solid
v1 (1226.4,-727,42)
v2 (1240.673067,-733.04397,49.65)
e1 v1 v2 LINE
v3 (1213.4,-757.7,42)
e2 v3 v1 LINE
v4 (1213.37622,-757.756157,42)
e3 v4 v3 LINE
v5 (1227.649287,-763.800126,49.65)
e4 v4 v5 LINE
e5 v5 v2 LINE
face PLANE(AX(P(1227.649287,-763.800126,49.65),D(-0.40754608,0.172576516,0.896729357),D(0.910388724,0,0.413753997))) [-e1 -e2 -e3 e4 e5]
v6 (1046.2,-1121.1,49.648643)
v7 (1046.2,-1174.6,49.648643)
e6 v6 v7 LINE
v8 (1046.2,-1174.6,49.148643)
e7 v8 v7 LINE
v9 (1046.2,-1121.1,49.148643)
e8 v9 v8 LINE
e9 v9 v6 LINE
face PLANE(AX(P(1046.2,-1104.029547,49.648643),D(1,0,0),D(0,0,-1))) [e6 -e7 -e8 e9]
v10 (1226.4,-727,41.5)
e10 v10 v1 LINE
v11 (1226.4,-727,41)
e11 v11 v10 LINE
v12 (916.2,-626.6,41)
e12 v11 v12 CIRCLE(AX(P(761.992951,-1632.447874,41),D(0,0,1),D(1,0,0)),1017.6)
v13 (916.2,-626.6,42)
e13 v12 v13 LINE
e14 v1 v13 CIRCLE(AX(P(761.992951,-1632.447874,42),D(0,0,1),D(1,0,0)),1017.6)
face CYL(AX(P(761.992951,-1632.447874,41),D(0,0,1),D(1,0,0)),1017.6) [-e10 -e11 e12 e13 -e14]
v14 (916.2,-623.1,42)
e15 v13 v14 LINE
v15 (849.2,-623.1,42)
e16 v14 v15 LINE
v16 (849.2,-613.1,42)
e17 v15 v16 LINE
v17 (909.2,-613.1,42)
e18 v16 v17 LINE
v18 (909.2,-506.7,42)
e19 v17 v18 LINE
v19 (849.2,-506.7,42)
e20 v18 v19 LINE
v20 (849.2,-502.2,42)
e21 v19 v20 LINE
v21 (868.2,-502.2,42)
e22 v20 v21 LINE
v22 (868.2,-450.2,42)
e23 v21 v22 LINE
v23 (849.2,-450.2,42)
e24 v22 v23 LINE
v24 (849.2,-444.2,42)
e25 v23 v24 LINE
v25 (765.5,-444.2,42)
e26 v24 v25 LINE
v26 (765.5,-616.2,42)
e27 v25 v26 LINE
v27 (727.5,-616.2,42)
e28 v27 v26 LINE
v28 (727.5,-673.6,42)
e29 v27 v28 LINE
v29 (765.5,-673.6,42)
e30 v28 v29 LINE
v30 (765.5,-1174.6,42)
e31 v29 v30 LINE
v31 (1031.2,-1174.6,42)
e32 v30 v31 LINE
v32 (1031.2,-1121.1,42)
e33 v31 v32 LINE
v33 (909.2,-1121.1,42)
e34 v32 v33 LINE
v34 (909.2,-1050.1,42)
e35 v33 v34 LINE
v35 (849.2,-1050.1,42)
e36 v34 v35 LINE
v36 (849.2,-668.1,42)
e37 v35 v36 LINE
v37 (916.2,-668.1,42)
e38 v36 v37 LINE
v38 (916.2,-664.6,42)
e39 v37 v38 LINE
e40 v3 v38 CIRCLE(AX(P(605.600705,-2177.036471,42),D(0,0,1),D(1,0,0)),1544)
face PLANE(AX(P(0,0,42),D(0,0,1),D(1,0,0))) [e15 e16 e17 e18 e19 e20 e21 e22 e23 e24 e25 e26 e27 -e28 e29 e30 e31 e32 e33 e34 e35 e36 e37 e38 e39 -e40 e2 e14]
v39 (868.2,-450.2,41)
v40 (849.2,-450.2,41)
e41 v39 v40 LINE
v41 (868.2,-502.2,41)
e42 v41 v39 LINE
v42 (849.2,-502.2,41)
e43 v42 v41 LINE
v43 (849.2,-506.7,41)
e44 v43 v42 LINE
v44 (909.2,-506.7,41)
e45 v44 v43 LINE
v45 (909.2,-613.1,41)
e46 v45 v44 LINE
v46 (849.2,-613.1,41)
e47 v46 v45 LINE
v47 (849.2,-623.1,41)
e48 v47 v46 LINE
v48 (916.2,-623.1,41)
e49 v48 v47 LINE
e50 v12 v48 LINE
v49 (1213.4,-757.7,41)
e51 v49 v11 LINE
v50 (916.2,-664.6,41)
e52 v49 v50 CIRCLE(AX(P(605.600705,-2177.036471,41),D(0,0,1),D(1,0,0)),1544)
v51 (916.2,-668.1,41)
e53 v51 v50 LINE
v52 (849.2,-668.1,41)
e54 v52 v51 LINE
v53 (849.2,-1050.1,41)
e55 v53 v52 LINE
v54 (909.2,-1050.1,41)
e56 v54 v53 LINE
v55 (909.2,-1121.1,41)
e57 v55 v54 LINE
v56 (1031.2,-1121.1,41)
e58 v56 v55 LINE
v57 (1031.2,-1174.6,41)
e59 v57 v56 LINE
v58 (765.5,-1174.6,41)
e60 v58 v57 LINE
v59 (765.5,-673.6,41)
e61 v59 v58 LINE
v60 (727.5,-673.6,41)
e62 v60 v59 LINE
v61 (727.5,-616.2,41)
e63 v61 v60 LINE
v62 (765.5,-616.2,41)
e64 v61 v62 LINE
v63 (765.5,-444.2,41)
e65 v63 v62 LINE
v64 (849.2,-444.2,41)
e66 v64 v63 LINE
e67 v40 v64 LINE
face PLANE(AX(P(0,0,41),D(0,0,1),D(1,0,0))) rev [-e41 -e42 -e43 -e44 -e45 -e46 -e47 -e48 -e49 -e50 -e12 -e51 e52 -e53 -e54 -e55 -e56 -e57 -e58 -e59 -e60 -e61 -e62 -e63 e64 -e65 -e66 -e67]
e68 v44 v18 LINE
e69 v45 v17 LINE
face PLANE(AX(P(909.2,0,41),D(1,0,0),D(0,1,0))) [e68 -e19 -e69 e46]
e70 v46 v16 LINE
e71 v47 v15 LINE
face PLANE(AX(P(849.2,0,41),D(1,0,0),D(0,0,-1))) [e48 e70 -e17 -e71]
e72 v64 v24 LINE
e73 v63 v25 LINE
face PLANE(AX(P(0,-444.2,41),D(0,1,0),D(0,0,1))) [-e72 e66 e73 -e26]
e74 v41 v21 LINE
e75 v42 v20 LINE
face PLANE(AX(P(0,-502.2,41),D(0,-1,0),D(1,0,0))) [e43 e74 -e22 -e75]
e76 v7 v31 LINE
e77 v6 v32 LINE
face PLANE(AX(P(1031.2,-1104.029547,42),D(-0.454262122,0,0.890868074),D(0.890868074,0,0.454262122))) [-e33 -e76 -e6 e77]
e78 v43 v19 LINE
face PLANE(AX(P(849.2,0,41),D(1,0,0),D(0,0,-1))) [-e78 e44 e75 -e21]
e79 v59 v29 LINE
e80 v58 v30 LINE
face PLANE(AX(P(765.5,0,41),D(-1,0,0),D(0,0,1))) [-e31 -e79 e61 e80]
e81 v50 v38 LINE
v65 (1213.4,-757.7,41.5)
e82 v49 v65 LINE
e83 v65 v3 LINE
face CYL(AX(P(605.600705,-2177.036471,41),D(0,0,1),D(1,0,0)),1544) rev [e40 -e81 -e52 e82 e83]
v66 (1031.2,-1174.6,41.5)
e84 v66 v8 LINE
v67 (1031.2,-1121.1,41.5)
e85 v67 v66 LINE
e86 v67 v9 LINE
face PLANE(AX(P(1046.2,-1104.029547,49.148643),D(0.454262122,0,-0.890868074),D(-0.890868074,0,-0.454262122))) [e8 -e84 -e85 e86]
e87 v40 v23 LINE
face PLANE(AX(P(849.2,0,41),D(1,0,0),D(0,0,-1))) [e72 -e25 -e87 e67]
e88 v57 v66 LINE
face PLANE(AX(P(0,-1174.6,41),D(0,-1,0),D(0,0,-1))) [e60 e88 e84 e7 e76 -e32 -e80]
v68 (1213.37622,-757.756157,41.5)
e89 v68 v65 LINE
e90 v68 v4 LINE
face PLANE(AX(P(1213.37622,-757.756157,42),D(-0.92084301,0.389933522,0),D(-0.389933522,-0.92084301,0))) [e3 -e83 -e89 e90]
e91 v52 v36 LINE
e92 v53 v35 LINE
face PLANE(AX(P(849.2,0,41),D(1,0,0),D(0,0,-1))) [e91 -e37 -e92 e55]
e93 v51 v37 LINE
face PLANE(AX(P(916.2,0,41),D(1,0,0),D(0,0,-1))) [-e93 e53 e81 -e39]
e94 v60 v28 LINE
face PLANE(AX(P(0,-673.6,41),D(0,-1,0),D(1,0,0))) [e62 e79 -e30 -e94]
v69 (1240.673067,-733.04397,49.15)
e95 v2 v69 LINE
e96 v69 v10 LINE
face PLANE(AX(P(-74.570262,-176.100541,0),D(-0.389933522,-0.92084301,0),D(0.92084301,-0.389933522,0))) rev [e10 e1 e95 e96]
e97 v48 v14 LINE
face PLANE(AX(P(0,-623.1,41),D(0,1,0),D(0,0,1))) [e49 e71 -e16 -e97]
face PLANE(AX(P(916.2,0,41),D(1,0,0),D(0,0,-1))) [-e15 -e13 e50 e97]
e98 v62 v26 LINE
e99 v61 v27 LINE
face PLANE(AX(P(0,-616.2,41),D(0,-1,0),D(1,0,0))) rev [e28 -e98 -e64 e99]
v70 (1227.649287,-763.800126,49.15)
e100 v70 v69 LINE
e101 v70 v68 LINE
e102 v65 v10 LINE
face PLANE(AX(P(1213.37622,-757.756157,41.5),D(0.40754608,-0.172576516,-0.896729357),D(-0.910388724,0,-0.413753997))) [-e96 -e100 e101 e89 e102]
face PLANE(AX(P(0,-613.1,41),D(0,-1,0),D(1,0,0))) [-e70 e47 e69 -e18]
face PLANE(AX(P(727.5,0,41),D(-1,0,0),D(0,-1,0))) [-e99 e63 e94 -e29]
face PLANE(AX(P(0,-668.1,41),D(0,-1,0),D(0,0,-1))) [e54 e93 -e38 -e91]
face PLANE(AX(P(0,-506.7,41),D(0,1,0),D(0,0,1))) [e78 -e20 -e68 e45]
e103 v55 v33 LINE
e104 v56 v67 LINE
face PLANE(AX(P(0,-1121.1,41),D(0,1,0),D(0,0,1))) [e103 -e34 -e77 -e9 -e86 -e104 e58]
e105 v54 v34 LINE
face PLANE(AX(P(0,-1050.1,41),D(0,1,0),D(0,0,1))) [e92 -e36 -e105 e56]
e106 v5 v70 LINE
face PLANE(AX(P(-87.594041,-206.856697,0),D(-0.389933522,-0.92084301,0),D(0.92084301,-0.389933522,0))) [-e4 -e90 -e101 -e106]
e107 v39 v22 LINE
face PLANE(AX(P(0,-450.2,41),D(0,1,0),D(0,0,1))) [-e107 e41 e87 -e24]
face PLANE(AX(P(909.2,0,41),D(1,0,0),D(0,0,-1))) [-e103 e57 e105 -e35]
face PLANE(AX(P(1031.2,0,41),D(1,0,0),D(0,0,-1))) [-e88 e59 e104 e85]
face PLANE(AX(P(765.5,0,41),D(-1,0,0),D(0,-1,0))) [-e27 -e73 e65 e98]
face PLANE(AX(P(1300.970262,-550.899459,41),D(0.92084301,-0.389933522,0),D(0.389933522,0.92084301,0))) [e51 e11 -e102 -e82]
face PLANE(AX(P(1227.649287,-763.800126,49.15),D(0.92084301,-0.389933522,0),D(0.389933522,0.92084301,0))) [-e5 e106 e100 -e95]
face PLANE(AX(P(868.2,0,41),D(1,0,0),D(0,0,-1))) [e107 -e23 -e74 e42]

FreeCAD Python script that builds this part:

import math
import FreeCAD as App
import Part
import Sketcher
Q = App.Units.Quantity

doc = App.newDocument("Part")
body = doc.addObject("PartDesign::Body", "Body")

# Sketch on XY plane
sketch1 = body.newObject("Sketcher::SketchObject", "Sketch")
sketch1.AttachmentSupport = (doc.getObject("XY_Plane"), [""])
sketch1.MapMode = "FlatFace"
sketch1.AttachmentOffset = App.Placement(App.Vector(0, 0, 42), App.Rotation())
sketch1.addGeometry([
    Part.LineSegment(App.Vector(849.2, -502.2, 0), App.Vector(868.2, -502.2, 0)),  # 0
    Part.LineSegment(App.Vector(868.2, -502.2, 0), App.Vector(868.2, -450.2, 0)),  # 1
    Part.LineSegment(App.Vector(868.2, -450.2, 0), App.Vector(849.2, -450.2, 0)),  # 2
    Part.LineSegment(App.Vector(849.2, -450.2, 0), App.Vector(849.2, -444.2, 0)),  # 3
    Part.LineSegment(App.Vector(849.2, -444.2, 0), App.Vector(765.5, -444.2, 0)),  # 4
    Part.LineSegment(App.Vector(765.5, -444.2, 0), App.Vector(765.5, -616.2, 0)),  # 5
    Part.LineSegment(App.Vector(765.5, -616.2, 0), App.Vector(727.5, -616.2, 0)),  # 6
    Part.LineSegment(App.Vector(727.5, -616.2, 0), App.Vector(727.5, -673.6, 0)),  # 7
    Part.LineSegment(App.Vector(727.5, -673.6, 0), App.Vector(765.5, -673.6, 0)),  # 8
    Part.LineSegment(App.Vector(765.5, -673.6, 0), App.Vector(765.5, -1174.6, 0)),  # 9
    Part.LineSegment(App.Vector(765.5, -1174.6, 0), App.Vector(1031.2, -1174.6, 0)),  # 10
    Part.LineSegment(App.Vector(1031.2, -1174.6, 0), App.Vector(1031.2, -1121.1, 0)),  # 11
    Part.LineSegment(App.Vector(1031.2, -1121.1, 0), App.Vector(909.2, -1121.1, 0)),  # 12
    Part.LineSegment(App.Vector(909.2, -1121.1, 0), App.Vector(909.2, -1050.1, 0)),  # 13
    Part.LineSegment(App.Vector(909.2, -1050.1, 0), App.Vector(849.2, -1050.1, 0)),  # 14
    Part.LineSegment(App.Vector(849.2, -1050.1, 0), App.Vector(849.2, -668.1, 0)),  # 15
    Part.LineSegment(App.Vector(849.2, -668.1, 0), App.Vector(916.2, -668.1, 0)),  # 16
    Part.LineSegment(App.Vector(916.2, -668.1, 0), App.Vector(916.2, -664.6, 0)),  # 17
    Part.ArcOfCircle(Part.Circle(App.Vector(605.6, -2177, 0), App.Vector(0, 0, 1), 1544), math.radians(66.82), math.radians(78.39)),  # 18
    Part.LineSegment(App.Vector(1213.4, -757.7, 0), App.Vector(1226.4, -727, 0)),  # 19
    Part.ArcOfCircle(Part.Circle(App.Vector(762, -1632.4, 0), App.Vector(0, 0, 1), 1017.6), math.radians(62.85), math.radians(81.28)),  # 20
    Part.LineSegment(App.Vector(916.2, -626.6, 0), App.Vector(916.2, -623.1, 0)),  # 21
    Part.LineSegment(App.Vector(916.2, -623.1, 0), App.Vector(849.2, -623.1, 0)),  # 22
    Part.LineSegment(App.Vector(849.2, -623.1, 0), App.Vector(849.2, -613.1, 0)),  # 23
    Part.LineSegment(App.Vector(849.2, -613.1, 0), App.Vector(909.2, -613.1, 0)),  # 24
    Part.LineSegment(App.Vector(909.2, -613.1, 0), App.Vector(909.2, -506.7, 0)),  # 25
    Part.LineSegment(App.Vector(909.2, -506.7, 0), App.Vector(849.2, -506.7, 0)),  # 26
    Part.LineSegment(App.Vector(849.2, -506.7, 0), App.Vector(849.2, -502.2, 0)),  # 27
], False)
sketch1.addConstraint([
    Sketcher.Constraint("Coincident", 0, 2, 1, 1),
    Sketcher.Constraint("Coincident", 1, 2, 2, 1),
    Sketcher.Constraint("Coincident", 2, 2, 3, 1),
    Sketcher.Constraint("Coincident", 3, 2, 4, 1),
    Sketcher.Constraint("Coincident", 4, 2, 5, 1),
    Sketcher.Constraint("Coincident", 5, 2, 6, 1),
    Sketcher.Constraint("Coincident", 6, 2, 7, 1),
    Sketcher.Constraint("Coincident", 7, 2, 8, 1),
    Sketcher.Constraint("Coincident", 8, 2, 9, 1),
    Sketcher.Constraint("Coincident", 9, 2, 10, 1),
    Sketcher.Constraint("Coincident", 10, 2, 11, 1),
    Sketcher.Constraint("Coincident", 11, 2, 12, 1),
    Sketcher.Constraint("Coincident", 12, 2, 13, 1),
    Sketcher.Constraint("Coincident", 13, 2, 14, 1),
    Sketcher.Constraint("Coincident", 14, 2, 15, 1),
    Sketcher.Constraint("Coincident", 15, 2, 16, 1),
    Sketcher.Constraint("Coincident", 16, 2, 17, 1),
    Sketcher.Constraint("Coincident", 17, 2, 18, 2),
    Sketcher.Constraint("Coincident", 18, 1, 19, 1),
    Sketcher.Constraint("Coincident", 19, 2, 20, 1),
    Sketcher.Constraint("Coincident", 20, 2, 21, 1),
    Sketcher.Constraint("Coincident", 21, 2, 22, 1),
    Sketcher.Constraint("Coincident", 22, 2, 23, 1),
    Sketcher.Constraint("Coincident", 23, 2, 24, 1),
    Sketcher.Constraint("Coincident", 24, 2, 25, 1),
    Sketcher.Constraint("Coincident", 25, 2, 26, 1),
    Sketcher.Constraint("Coincident", 26, 2, 27, 1),
    Sketcher.Constraint("Coincident", 27, 2, 0, 1),
    Sketcher.Constraint("Horizontal", 0),
    Sketcher.Constraint("Vertical", 1),
    Sketcher.Constraint("Horizontal", 2),
    Sketcher.Constraint("Vertical", 3),
    Sketcher.Constraint("Horizontal", 4),
    Sketcher.Constraint("Vertical", 5),
    Sketcher.Constraint("Horizontal", 6),
    Sketcher.Constraint("Vertical", 7),
    Sketcher.Constraint("Horizontal", 8),
    Sketcher.Constraint("Vertical", 9),
    Sketcher.Constraint("Horizontal", 10),
    Sketcher.Constraint("Vertical", 11),
    Sketcher.Constraint("Horizontal", 12),
    Sketcher.Constraint("Vertical", 13),
    Sketcher.Constraint("Horizontal", 14),
    Sketcher.Constraint("Vertical", 15),
    Sketcher.Constraint("Horizontal", 16),
    Sketcher.Constraint("Vertical", 17),
    Sketcher.Constraint("Vertical", 21),
    Sketcher.Constraint("Horizontal", 22),
    Sketcher.Constraint("Vertical", 23),
    Sketcher.Constraint("Horizontal", 24),
    Sketcher.Constraint("Vertical", 25),
    Sketcher.Constraint("Horizontal", 26),
    Sketcher.Constraint("Vertical", 27),
    Sketcher.Constraint("Vertical", 5, 2, 8, 2),
    Sketcher.Constraint("Vertical", 3, 2, 14, 2),
    Sketcher.Constraint("Vertical", 15, 2, 22, 2),
    Sketcher.Constraint("Vertical", 13, 2, 24, 2),
    Sketcher.Constraint("Vertical", 23, 2, 26, 2),
    Sketcher.Constraint("Equal", 16, 22),
    Sketcher.Constraint("Equal", 17, 21),
    Sketcher.Constraint("Radius", 18, Q("1544 mm")),
    Sketcher.Constraint("Radius", 20, Q("1017.6 mm")),
    Sketcher.Constraint("DistanceX", 0, 1, 0, 2, Q("19 mm")),
    Sketcher.Constraint("DistanceX", 6, 2, 6, 1, Q("38 mm")),
    Sketcher.Constraint("DistanceX", 12, 2, 12, 1, Q("122 mm")),
    Sketcher.Constraint("DistanceX", 14, 2, 14, 1, Q("60 mm")),
    Sketcher.Constraint("DistanceX", 16, 1, 16, 2, Q("67 mm")),
    Sketcher.Constraint("DistanceY", 1, 1, 1, 2, Q("52 mm")),
    Sketcher.Constraint("DistanceY", 3, 1, 3, 2, Q("6 mm")),
    Sketcher.Constraint("DistanceY", 5, 2, 5, 1, Q("172 mm")),
    Sketcher.Constraint("DistanceY", 9, 2, 9, 1, Q("501 mm")),
    Sketcher.Constraint("DistanceY", 13, 1, 13, 2, Q("71 mm")),
    Sketcher.Constraint("DistanceY", 15, 1, 15, 2, Q("382 mm")),
    Sketcher.Constraint("DistanceY", 23, 1, 23, 2, Q("10 mm")),
    Sketcher.Constraint("DistanceX", 4, 2, 4, 1, Q("83.7 mm")),
    Sketcher.Constraint("DistanceY", 7, 2, 7, 1, Q("57.4 mm")),
    Sketcher.Constraint("DistanceY", 11, 1, 11, 2, Q("53.5 mm")),
    Sketcher.Constraint("DistanceY", 17, 1, 17, 2, Q("3.5 mm")),
    Sketcher.Constraint("DistanceY", 25, 1, 25, 2, Q("106.4 mm")),
    Sketcher.Constraint("DistanceY", 27, 1, 27, 2, Q("4.5 mm")),
    Sketcher.Constraint("DistanceY", 19, 2, -1, 1, Q("727 mm")),
    Sketcher.Constraint("DistanceX", -1, 1, 0, 2, Q("868.2 mm")),
    Sketcher.Constraint("DistanceY", 0, 2, -1, 1, Q("502.2 mm")),
    Sketcher.Constraint("DistanceX", -1, 1, 19, 2, Q("1226.4 mm")),
    Sketcher.Constraint("DistanceY", 18, 3, -1, 1, Q("2177.036471 mm")),
    Sketcher.Constraint("Distance", 19, Q("33.339016 mm")),
])
pad1 = body.newObject("PartDesign::Pad", "Pad")
pad1.Profile = sketch1
pad1.Length = 1
pad1.Reversed = True

# Sketch on XZ plane
sketch2 = body.newObject("Sketcher::SketchObject", "Sketch001")
sketch2.AttachmentSupport = (doc.getObject("XZ_Plane"), [""])
sketch2.MapMode = "FlatFace"
sketch2.AttachmentOffset = App.Placement(App.Vector(0, 0, 1174.6), App.Rotation())
sketch2.addGeometry([
    Part.LineSegment(App.Vector(1046.2, 49.6, 0), App.Vector(1031.2, 42, 0)),
    Part.LineSegment(App.Vector(1031.2, 42, 0), App.Vector(1031.2, 41.5, 0)),
    Part.LineSegment(App.Vector(1031.2, 41.5, 0), App.Vector(1046.2, 49.1, 0)),
    Part.LineSegment(App.Vector(1046.2, 49.1, 0), App.Vector(1046.2, 49.6, 0)),
], False)
sketch2.addConstraint([
    Sketcher.Constraint("Coincident", 0, 2, 1, 1),
    Sketcher.Constraint("Coincident", 1, 2, 2, 1),
    Sketcher.Constraint("Coincident", 2, 2, 3, 1),
    Sketcher.Constraint("Coincident", 3, 2, 0, 1),
    Sketcher.Constraint("Vertical", 1),
    Sketcher.Constraint("Vertical", 3),
    Sketcher.Constraint("Parallel", 0, 2),
    Sketcher.Constraint("DistanceY", 1, 2, 1, 1, Q("0.5 mm")),
    Sketcher.Constraint("DistanceY", -1, 1, 0, 2, Q("42 mm")),
    Sketcher.Constraint("DistanceX", 0, 2, 2, 2, Q("15 mm")),
    Sketcher.Constraint("DistanceX", -1, 1, 0, 2, Q("1031.2 mm")),
    Sketcher.Constraint("Distance", 0, Q("16.83751 mm")),
])
pad2 = body.newObject("PartDesign::Pad", "Pad001")
pad2.Profile = sketch2
pad2.Length = 53.5
pad2.Reversed = True

# Sketch on an angled plane
sketch3 = body.newObject("Sketcher::SketchObject", "Sketch002")
sketch3.Placement = App.Placement(App.Vector(1226.4, -727, 42), App.Rotation(App.Vector(-0.92084301, 0.389933522, 0), App.Vector(0, 0, 1.000000001), App.Vector(0.389933522, 0.92084301, 0), "ZXY"))
sketch3.addGeometry([
    Part.LineSegment(App.Vector(-15.5, 7.2, 0), App.Vector(0, -0.5, 0)),
    Part.LineSegment(App.Vector(0, -0.5, 0), App.Vector(0, 0, 0)),
    Part.LineSegment(App.Vector(0, 0, 0), App.Vector(-15.5, 7.7, 0)),
    Part.LineSegment(App.Vector(-15.5, 7.7, 0), App.Vector(-15.5, 7.2, 0)),
], False)
sketch3.addConstraint([
    Sketcher.Constraint("Coincident", 0, 2, 1, 1),
    Sketcher.Constraint("Coincident", 1, 2, 2, 1),
    Sketcher.Constraint("Coincident", 2, 2, 3, 1),
    Sketcher.Constraint("Coincident", 3, 2, 0, 1),
    Sketcher.Constraint("Vertical", 1),
    Sketcher.Constraint("Vertical", 3),
    Sketcher.Constraint("Coincident", 1, 2, -1, 1),
    Sketcher.Constraint("Parallel", 0, 2),
    Sketcher.Constraint("DistanceY", 1, 1, 1, 2, Q("0.5 mm")),
    Sketcher.Constraint("DistanceX", 2, 2, -1, 1, Q("15.5 mm")),
    Sketcher.Constraint("DistanceY", -1, 1, 2, 2, Q("7.65 mm")),
])
pad3 = body.newObject("PartDesign::Pad", "Pad002")
pad3.Profile = sketch3
pad3.Length = 33.4
pad3.Reversed = True

doc.recompute()
